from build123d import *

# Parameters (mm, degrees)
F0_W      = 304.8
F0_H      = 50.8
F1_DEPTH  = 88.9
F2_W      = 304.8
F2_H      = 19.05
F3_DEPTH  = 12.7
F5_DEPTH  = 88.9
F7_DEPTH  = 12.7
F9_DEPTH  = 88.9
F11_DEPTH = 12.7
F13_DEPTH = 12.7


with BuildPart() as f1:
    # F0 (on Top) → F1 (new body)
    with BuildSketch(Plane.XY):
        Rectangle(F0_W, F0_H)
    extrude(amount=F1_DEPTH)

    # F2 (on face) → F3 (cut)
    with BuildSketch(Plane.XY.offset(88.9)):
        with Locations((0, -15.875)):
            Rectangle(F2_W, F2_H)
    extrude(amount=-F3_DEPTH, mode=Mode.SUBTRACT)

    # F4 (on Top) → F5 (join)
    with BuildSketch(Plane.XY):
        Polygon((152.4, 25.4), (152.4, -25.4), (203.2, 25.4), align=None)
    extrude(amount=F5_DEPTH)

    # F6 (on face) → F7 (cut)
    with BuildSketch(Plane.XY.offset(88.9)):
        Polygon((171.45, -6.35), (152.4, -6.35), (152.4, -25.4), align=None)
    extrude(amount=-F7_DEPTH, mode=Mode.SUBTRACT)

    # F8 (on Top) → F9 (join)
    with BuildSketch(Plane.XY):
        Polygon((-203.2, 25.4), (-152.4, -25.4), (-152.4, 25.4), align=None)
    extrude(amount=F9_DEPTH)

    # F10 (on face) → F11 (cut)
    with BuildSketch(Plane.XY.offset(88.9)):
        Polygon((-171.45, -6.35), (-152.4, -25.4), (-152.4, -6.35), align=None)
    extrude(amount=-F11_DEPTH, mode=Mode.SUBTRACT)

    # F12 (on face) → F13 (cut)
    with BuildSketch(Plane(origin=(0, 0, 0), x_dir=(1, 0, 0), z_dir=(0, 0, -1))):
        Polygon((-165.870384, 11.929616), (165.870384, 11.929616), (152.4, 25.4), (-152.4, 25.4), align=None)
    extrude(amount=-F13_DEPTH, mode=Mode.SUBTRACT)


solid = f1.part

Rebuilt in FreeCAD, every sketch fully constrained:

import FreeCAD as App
import Part
import Sketcher
from FreeCAD import Vector
Q = App.Units.Quantity

doc = App.newDocument("Part")
body = doc.addObject("PartDesign::Body", "Body")

sketch1 = body.newObject("Sketcher::SketchObject", "Sketch")
sketch1.AttachmentSupport = (doc.getObject("XY_Plane"), [""])
sketch1.MapMode = "FlatFace"
sketch1.addGeometry([
    Part.LineSegment(Vector(-152, 25, 0), Vector(-152, -25, 0)),
    Part.LineSegment(Vector(-152, -25, 0), Vector(152, -25, 0)),
    Part.LineSegment(Vector(152, -25, 0), Vector(152, 25, 0)),
    Part.LineSegment(Vector(152, 25, 0), Vector(-152, 25, 0)),
], False)
sketch1.addConstraint([
    Sketcher.Constraint("Coincident", 0, 2, 1, 1),
    Sketcher.Constraint("Coincident", 1, 2, 2, 1),
    Sketcher.Constraint("Coincident", 2, 2, 3, 1),
    Sketcher.Constraint("Coincident", 3, 2, 0, 1),
    Sketcher.Constraint("Vertical", 0),
    Sketcher.Constraint("Horizontal", 1),
    Sketcher.Constraint("Vertical", 2),
    Sketcher.Constraint("Horizontal", 3),
    Sketcher.Constraint("Symmetric", 0, 2, 2, 2, -1, 1),
    Sketcher.Constraint("DistanceX", 1, 1, 1, 2, Q("12 in")),
    Sketcher.Constraint("DistanceY", 0, 2, 0, 1, Q("2 in")),
])
pad1 = body.newObject("PartDesign::Pad", "Pad")
pad1.Profile = sketch1
pad1.Length = Q("3.5 in")

sketch2 = body.newObject("Sketcher::SketchObject", "Sketch001")
sketch2.AttachmentSupport = (doc.getObject("XY_Plane"), [""])
sketch2.MapMode = "FlatFace"
sketch2.AttachmentOffset = App.Placement(Vector(0, 0, 3.5 * 25.4), App.Rotation())
sketch2.addGeometry([
    Part.LineSegment(Vector(-152, -6, 0), Vector(-152, -25, 0)),
    Part.LineSegment(Vector(-152, -25, 0), Vector(152, -25, 0)),
    Part.LineSegment(Vector(152, -25, 0), Vector(152, -6, 0)),
    Part.LineSegment(Vector(152, -6, 0), Vector(-152, -6, 0)),
], False)
sketch2.addConstraint([
    Sketcher.Constraint("Coincident", 0, 2, 1, 1),
    Sketcher.Constraint("Coincident", 1, 2, 2, 1),
    Sketcher.Constraint("Coincident", 2, 2, 3, 1),
    Sketcher.Constraint("Coincident", 3, 2, 0, 1),
    Sketcher.Constraint("Vertical", 0),
    Sketcher.Constraint("Horizontal", 1),
    Sketcher.Constraint("Vertical", 2),
    Sketcher.Constraint("Horizontal", 3),
    Sketcher.Constraint("DistanceX", 1, 1, 1, 2, Q("12 in")),
    Sketcher.Constraint("DistanceX", 0, 2, -1, 1, Q("6 in")),
    Sketcher.Constraint("DistanceY", 0, 2, -1, 1, Q("1 in")),
    Sketcher.Constraint("DistanceY", 0, 2, 0, 1, Q("0.75 in")),
])
pocket1 = body.newObject("PartDesign::Pocket", "Pocket")
pocket1.Profile = sketch2
pocket1.Length = Q("0.5 in")

sketch3 = body.newObject("Sketcher::SketchObject", "Sketch002")
sketch3.AttachmentSupport = (doc.getObject("XY_Plane"), [""])
sketch3.MapMode = "FlatFace"
sketch3.addGeometry([
    Part.LineSegment(Vector(152, 25, 0), Vector(152, -25, 0)),
    Part.LineSegment(Vector(152, -25, 0), Vector(203, 25, 0)),
    Part.LineSegment(Vector(203, 25, 0), Vector(152, 25, 0)),
], False)
sketch3.addConstraint([
    Sketcher.Constraint("Coincident", 0, 2, 1, 1),
    Sketcher.Constraint("Coincident", 1, 2, 2, 1),
    Sketcher.Constraint("Coincident", 2, 2, 0, 1),
    Sketcher.Constraint("Vertical", 0),
    Sketcher.Constraint("Horizontal", 2),
    Sketcher.Constraint("Equal", 2, 0),
    Sketcher.Constraint("DistanceX", 2, 2, 2, 1, Q("2 in")),
    Sketcher.Constraint("DistanceX", -1, 1, 0, 2, Q("6 in")),
    Sketcher.Constraint("DistanceY", 0, 2, -1, 1, Q("1 in")),
])
pad2 = body.newObject("PartDesign::Pad", "Pad001")
pad2.Profile = sketch3
pad2.Length = Q("3.5 in")

sketch4 = body.newObject("Sketcher::SketchObject", "Sketch003")
sketch4.AttachmentSupport = (doc.getObject("XY_Plane"), [""])
sketch4.MapMode = "FlatFace"
sketch4.AttachmentOffset = App.Placement(Vector(0, 0, 3.5 * 25.4), App.Rotation())
sketch4.addGeometry([
    Part.LineSegment(Vector(171, -6, 0), Vector(152, -6, 0)),
    Part.LineSegment(Vector(152, -6, 0), Vector(152, -25, 0)),
    Part.LineSegment(Vector(152, -25, 0), Vector(171, -6, 0)),
], False)
sketch4.addConstraint([
    Sketcher.Constraint("Coincident", 0, 2, 1, 1),
    Sketcher.Constraint("Coincident", 1, 2, 2, 1),
    Sketcher.Constraint("Coincident", 2, 2, 0, 1),
    Sketcher.Constraint("Horizontal", 0),
    Sketcher.Constraint("Vertical", 1),
    Sketcher.Constraint("Equal", 0, 1),
    Sketcher.Constraint("DistanceX", -1, 1, 0, 2, Q("6 in")),
    Sketcher.Constraint("DistanceY", 1, 2, -1, 1, Q("1 in")),
    Sketcher.Constraint("DistanceX", 0, 2, 0, 1, Q("0.75 in")),
])
pocket2 = body.newObject("PartDesign::Pocket", "Pocket001")
pocket2.Profile = sketch4
pocket2.Length = Q("0.5 in")

sketch5 = body.newObject("Sketcher::SketchObject", "Sketch004")
sketch5.AttachmentSupport = (doc.getObject("XY_Plane"), [""])
sketch5.MapMode = "FlatFace"
sketch5.addGeometry([
    Part.LineSegment(Vector(-203, 25, 0), Vector(-152, -25, 0)),
    Part.LineSegment(Vector(-152, -25, 0), Vector(-152, 25, 0)),
    Part.LineSegment(Vector(-152, 25, 0), Vector(-203, 25, 0)),
], False)
sketch5.addConstraint([
    Sketcher.Constraint("Coincident", 0, 2, 1, 1),
    Sketcher.Constraint("Coincident", 1, 2, 2, 1),
    Sketcher.Constraint("Coincident", 2, 2, 0, 1),
    Sketcher.Constraint("Vertical", 1),
    Sketcher.Constraint("Horizontal", 2),
    Sketcher.Constraint("Equal", 2, 1),
    Sketcher.Constraint("DistanceX", 2, 2, 2, 1, Q("2 in")),
    Sketcher.Constraint("DistanceX", 0, 2, -1, 1, Q("6 in")),
    Sketcher.Constraint("DistanceY", 0, 2, -1, 1, Q("1 in")),
])
pad3 = body.newObject("PartDesign::Pad", "Pad002")
pad3.Profile = sketch5
pad3.Length = Q("3.5 in")

sketch6 = body.newObject("Sketcher::SketchObject", "Sketch005")
sketch6.AttachmentSupport = (doc.getObject("XY_Plane"), [""])
sketch6.MapMode = "FlatFace"
sketch6.AttachmentOffset = App.Placement(Vector(0, 0, 3.5 * 25.4), App.Rotation())
sketch6.addGeometry([
    Part.LineSegment(Vector(-171, -6, 0), Vector(-152, -25, 0)),
    Part.LineSegment(Vector(-152, -25, 0), Vector(-152, -6, 0)),
    Part.LineSegment(Vector(-152, -6, 0), Vector(-171, -6, 0)),
], False)
sketch6.addConstraint([
    Sketcher.Constraint("Coincident", 0, 2, 1, 1),
    Sketcher.Constraint("Coincident", 1, 2, 2, 1),
    Sketcher.Constraint("Coincident", 2, 2, 0, 1),
    Sketcher.Constraint("Vertical", 1),
    Sketcher.Constraint("Horizontal", 2),
    Sketcher.Constraint("Equal", 2, 1),
    Sketcher.Constraint("DistanceX", 0, 2, -1, 1, Q("6 in")),
    Sketcher.Constraint("DistanceY", 0, 2, -1, 1, Q("1 in")),
    Sketcher.Constraint("DistanceX", 2, 2, 2, 1, Q("0.75 in")),
])
pocket3 = body.newObject("PartDesign::Pocket", "Pocket002")
pocket3.Profile = sketch6
pocket3.Length = Q("0.5 in")

sketch7 = body.newObject("Sketcher::SketchObject", "Sketch006")
sketch7.AttachmentSupport = (doc.getObject("XY_Plane"), [""])
sketch7.MapMode = "FlatFace"
sketch7.addGeometry([
    Part.LineSegment(Vector(-166, -12, 0), Vector(166, -12, 0)),
    Part.LineSegment(Vector(166, -12, 0), Vector(152, -25, 0)),
    Part.LineSegment(Vector(152, -25, 0), Vector(-152, -25, 0)),
    Part.LineSegment(Vector(-152, -25, 0), Vector(-166, -12, 0)),
], False)
sketch7.addConstraint([
    Sketcher.Constraint("Coincident", 0, 2, 1, 1),
    Sketcher.Constraint("Coincident", 1, 2, 2, 1),
    Sketcher.Constraint("Coincident", 2, 2, 3, 1),
    Sketcher.Constraint("Coincident", 3, 2, 0, 1),
    Sketcher.Constraint("Horizontal", 0),
    Sketcher.Constraint("Horizontal", 2),
    Sketcher.Constraint("Perpendicular", 1, 3),
    Sketcher.Constraint("Equal", 1, 3),
    Sketcher.Constraint("DistanceX", 2, 2, 2, 1, Q("12 in")),
    Sketcher.Constraint("DistanceX", -1, 1, 1, 2, Q("6 in")),
    Sketcher.Constraint("DistanceY", 1, 2, -1, 1, Q("1 in")),
    Sketcher.Constraint("Distance", 1, Q("0.75 in")),
])
pocket4 = body.newObject("PartDesign::Pocket", "Pocket003")
pocket4.Profile = sketch7
pocket4.Length = Q("0.5 in")
pocket4.Reversed = True

doc.recompute()
